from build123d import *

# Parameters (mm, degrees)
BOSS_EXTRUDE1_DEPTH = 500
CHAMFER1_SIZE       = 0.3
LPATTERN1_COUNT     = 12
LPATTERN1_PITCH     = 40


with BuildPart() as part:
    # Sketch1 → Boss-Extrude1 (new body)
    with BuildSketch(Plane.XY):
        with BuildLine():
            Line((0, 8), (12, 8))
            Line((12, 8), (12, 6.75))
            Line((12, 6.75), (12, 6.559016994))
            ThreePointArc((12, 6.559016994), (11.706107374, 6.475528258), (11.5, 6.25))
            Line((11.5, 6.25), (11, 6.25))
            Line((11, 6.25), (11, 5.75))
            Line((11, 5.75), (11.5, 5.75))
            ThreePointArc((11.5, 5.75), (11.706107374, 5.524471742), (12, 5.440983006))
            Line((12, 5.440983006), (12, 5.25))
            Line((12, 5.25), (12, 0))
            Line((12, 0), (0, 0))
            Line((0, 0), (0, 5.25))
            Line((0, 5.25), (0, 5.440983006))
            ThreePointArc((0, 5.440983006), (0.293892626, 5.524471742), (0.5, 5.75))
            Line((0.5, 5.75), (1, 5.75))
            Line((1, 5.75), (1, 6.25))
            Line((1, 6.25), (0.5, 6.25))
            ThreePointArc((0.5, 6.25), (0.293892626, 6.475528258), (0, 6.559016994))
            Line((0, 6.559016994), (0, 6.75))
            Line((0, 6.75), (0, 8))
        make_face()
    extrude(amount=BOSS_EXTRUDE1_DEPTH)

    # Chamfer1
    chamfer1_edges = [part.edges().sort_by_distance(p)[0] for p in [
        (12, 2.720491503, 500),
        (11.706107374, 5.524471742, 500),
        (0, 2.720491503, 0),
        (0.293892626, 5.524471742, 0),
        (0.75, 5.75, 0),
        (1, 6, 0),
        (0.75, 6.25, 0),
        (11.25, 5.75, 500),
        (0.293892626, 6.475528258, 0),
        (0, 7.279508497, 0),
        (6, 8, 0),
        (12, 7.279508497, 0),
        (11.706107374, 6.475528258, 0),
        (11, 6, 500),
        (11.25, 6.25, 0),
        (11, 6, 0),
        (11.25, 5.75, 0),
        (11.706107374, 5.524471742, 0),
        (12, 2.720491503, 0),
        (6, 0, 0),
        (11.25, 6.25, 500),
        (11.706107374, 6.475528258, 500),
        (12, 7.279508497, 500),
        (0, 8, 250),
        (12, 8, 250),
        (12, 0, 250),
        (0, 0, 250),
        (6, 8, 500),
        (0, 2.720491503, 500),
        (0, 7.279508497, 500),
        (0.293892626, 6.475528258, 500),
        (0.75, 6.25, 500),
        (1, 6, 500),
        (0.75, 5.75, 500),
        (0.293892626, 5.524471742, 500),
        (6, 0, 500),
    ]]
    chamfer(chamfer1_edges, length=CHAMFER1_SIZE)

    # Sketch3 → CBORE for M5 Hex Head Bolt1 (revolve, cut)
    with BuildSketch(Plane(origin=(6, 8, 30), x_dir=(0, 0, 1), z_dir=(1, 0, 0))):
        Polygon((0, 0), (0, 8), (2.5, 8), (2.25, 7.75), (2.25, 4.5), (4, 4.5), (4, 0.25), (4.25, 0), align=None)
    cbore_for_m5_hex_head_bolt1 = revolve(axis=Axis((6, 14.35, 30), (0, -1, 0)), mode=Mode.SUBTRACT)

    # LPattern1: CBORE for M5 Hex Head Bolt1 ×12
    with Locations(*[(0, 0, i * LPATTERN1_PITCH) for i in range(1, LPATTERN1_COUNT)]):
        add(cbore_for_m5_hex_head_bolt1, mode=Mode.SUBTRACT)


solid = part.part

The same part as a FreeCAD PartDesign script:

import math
import FreeCAD as App
import Part
import Sketcher
Q = App.Units.Quantity


def edges_at(feature, points):
    """Names of the edges that pass closest to the given points."""
    edges = feature.Shape.Edges
    near = lambda p: min(range(len(edges)), key=lambda i: edges[i].distToShape(Part.Vertex(*p))[0])
    return sorted({f"Edge{near(p) + 1}" for p in points})

doc = App.newDocument("Part")
body = doc.addObject("PartDesign::Body", "Body")

sketch1 = doc.addObject("Sketcher::SketchObject", "Sketch")
body.addObject(sketch1)
sketch1.AttachmentSupport = (doc.XY_Plane, [""])
sketch1.MapMode = "FlatFace"
sketch1.addGeometry(Part.LineSegment(App.Vector(12, 8, 0), App.Vector(0, 8, 0)), False)
sketch1.addGeometry(Part.LineSegment(App.Vector(0, 8, 0), App.Vector(0, 6.6, 0)), False)
sketch1.addGeometry(Part.ArcOfCircle(Part.Circle(App.Vector(0, 6, 0), App.Vector(0, 0, 1), 0.6), math.radians(27), math.radians(90)), False)
sketch1.addGeometry(Part.LineSegment(App.Vector(0.5, 6.2, 0), App.Vector(1, 6.2, 0)), False)
sketch1.addGeometry(Part.LineSegment(App.Vector(1, 6.2, 0), App.Vector(1, 5.8, 0)), False)
sketch1.addGeometry(Part.LineSegment(App.Vector(1, 5.8, 0), App.Vector(0.5, 5.8, 0)), False)
sketch1.addGeometry(Part.ArcOfCircle(Part.Circle(App.Vector(0, 6, 0), App.Vector(0, 0, 1), 0.6), math.radians(-90), math.radians(-27)), False)
sketch1.addGeometry(Part.LineSegment(App.Vector(0, 5.4, 0), App.Vector(0, 0, 0)), False)
sketch1.addGeometry(Part.LineSegment(App.Vector(0, 0, 0), App.Vector(12, 0, 0)), False)
sketch1.addGeometry(Part.LineSegment(App.Vector(12, 0, 0), App.Vector(12, 5.4, 0)), False)
sketch1.addGeometry(Part.ArcOfCircle(Part.Circle(App.Vector(12, 6, 0), App.Vector(0, 0, 1), 0.6), math.radians(-153), math.radians(-90)), False)
sketch1.addGeometry(Part.LineSegment(App.Vector(11.5, 5.8, 0), App.Vector(11, 5.8, 0)), False)
sketch1.addGeometry(Part.LineSegment(App.Vector(11, 5.8, 0), App.Vector(11, 6.2, 0)), False)
sketch1.addGeometry(Part.LineSegment(App.Vector(11, 6.2, 0), App.Vector(11.5, 6.2, 0)), False)
sketch1.addGeometry(Part.ArcOfCircle(Part.Circle(App.Vector(12, 6, 0), App.Vector(0, 0, 1), 0.6), math.radians(90), math.radians(153)), False)
sketch1.addGeometry(Part.LineSegment(App.Vector(12, 6.6, 0), App.Vector(12, 8, 0)), False)
sketch1.addConstraint(Sketcher.Constraint("Coincident", 0, 2, 1, 1))
sketch1.addConstraint(Sketcher.Constraint("Coincident", 1, 2, 2, 2))
sketch1.addConstraint(Sketcher.Constraint("Coincident", 2, 1, 3, 1))
sketch1.addConstraint(Sketcher.Constraint("Coincident", 3, 2, 4, 1))
sketch1.addConstraint(Sketcher.Constraint("Coincident", 4, 2, 5, 1))
sketch1.addConstraint(Sketcher.Constraint("Coincident", 5, 2, 6, 2))
sketch1.addConstraint(Sketcher.Constraint("Coincident", 6, 1, 7, 1))
sketch1.addConstraint(Sketcher.Constraint("Coincident", 7, 2, 8, 1))
sketch1.addConstraint(Sketcher.Constraint("Coincident", 8, 2, 9, 1))
sketch1.addConstraint(Sketcher.Constraint("Coincident", 9, 2, 10, 2))
sketch1.addConstraint(Sketcher.Constraint("Coincident", 10, 1, 11, 1))
sketch1.addConstraint(Sketcher.Constraint("Coincident", 11, 2, 12, 1))
sketch1.addConstraint(Sketcher.Constraint("Coincident", 12, 2, 13, 1))
sketch1.addConstraint(Sketcher.Constraint("Coincident", 13, 2, 14, 2))
sketch1.addConstraint(Sketcher.Constraint("Coincident", 14, 1, 15, 1))
sketch1.addConstraint(Sketcher.Constraint("Coincident", 15, 2, 0, 1))
sketch1.addConstraint(Sketcher.Constraint("Horizontal", 0))
sketch1.addConstraint(Sketcher.Constraint("Vertical", 1))
sketch1.addConstraint(Sketcher.Constraint("Horizontal", 3))
sketch1.addConstraint(Sketcher.Constraint("Vertical", 4))
sketch1.addConstraint(Sketcher.Constraint("Horizontal", 5))
sketch1.addConstraint(Sketcher.Constraint("Vertical", 7))
sketch1.addConstraint(Sketcher.Constraint("Horizontal", 8))
sketch1.addConstraint(Sketcher.Constraint("Vertical", 9))
sketch1.addConstraint(Sketcher.Constraint("Horizontal", 11))
sketch1.addConstraint(Sketcher.Constraint("Vertical", 12))
sketch1.addConstraint(Sketcher.Constraint("Horizontal", 13))
sketch1.addConstraint(Sketcher.Constraint("Vertical", 15))
sketch1.addConstraint(Sketcher.Constraint("Coincident", 7, 2, -1, 1))
sketch1.addConstraint(Sketcher.Constraint("Coincident", 6, 3, 2, 3))
sketch1.addConstraint(Sketcher.Constraint("Coincident", 14, 3, 10, 3))
sketch1.addConstraint(Sketcher.Constraint("Equal", 2, 6))
sketch1.addConstraint(Sketcher.Constraint("Equal", 6, 10))
sketch1.addConstraint(Sketcher.Constraint("Equal", 10, 14))
sketch1.addConstraint(Sketcher.Constraint("PointOnObject", 2, 3, -2))
sketch1.addConstraint(Sketcher.Constraint("PointOnObject", 0, 2, -2))
sketch1.addConstraint(Sketcher.Constraint("Horizontal", 6, 3, 10, 3))
sketch1.addConstraint(Sketcher.Constraint("Horizontal", 5, 2, 10, 1))
sketch1.addConstraint(Sketcher.Constraint("Horizontal", 3, 2, 12, 2))
sketch1.addConstraint(Sketcher.Constraint("Vertical", 2, 1, 5, 2))
sketch1.addConstraint(Sketcher.Constraint("Vertical", 14, 3, 8, 2))
sketch1.addConstraint(Sketcher.Constraint("Vertical", 9, 2, 14, 1))
sketch1.addConstraint(Sketcher.Constraint("Equal", 5, 11))
sketch1.addConstraint(Sketcher.Constraint("Equal", 13, 4))
sketch1.addConstraint(Sketcher.Constraint("DistanceX", 0, 2, 0, 1, Q("12 mm")))
sketch1.addConstraint(Sketcher.Constraint("DistanceX", 3, 1, 3, 2, Q("0.5 mm")))
sketch1.addConstraint(Sketcher.Constraint("DistanceY", -1, 1, 2, 3, Q("6 mm")))
sketch1.addConstraint(Sketcher.Constraint("DistanceY", -1, 1, 0, 2, Q("8 mm")))
sketch1.addConstraint(Sketcher.Constraint("DistanceX", -1, 1, 3, 2, Q("1 mm")))
pad1 = doc.addObject("PartDesign::Pad", "Pad")
body.addObject(pad1)
pad1.Profile = sketch1
pad1.Length = 500
doc.recompute()

chamfer = doc.addObject("PartDesign::Chamfer", "Chamfer")
body.addObject(chamfer)
chamfer.Base = (pad1, edges_at(pad1, [
    (12, 2.72, 500),
    (11.706, 5.524, 500),
    (0, 2.72, 0),
    (0.294, 5.524, 0),
    (0.75, 5.75, 0),
    (1, 6, 0),
    (0.75, 6.25, 0),
    (11.25, 5.75, 500),
    (0.294, 6.476, 0),
    (0, 7.28, 0),
    (6, 8, 0),
    (12, 7.28, 0),
    (11.706, 6.476, 0),
    (11, 6, 500),
    (11.25, 6.25, 0),
    (11, 6, 0),
    (11.25, 5.75, 0),
    (11.706, 5.524, 0),
    (12, 2.72, 0),
    (6, 0, 0),
    (11.25, 6.25, 500),
    (11.706, 6.476, 500),
    (12, 7.28, 500),
    (0, 8, 250),
    (12, 8, 250),
    (12, 0, 250),
    (0, 0, 250),
    (6, 8, 500),
    (0, 2.72, 500),
    (0, 7.28, 500),
    (0.294, 6.476, 500),
    (0.75, 6.25, 500),
    (1, 6, 500),
    (0.75, 5.75, 500),
    (0.294, 5.524, 500),
    (6, 0, 500),
]))
chamfer.Size = 0.3

sketch2 = doc.addObject("Sketcher::SketchObject", "Sketch001")
body.addObject(sketch2)
sketch2.AttachmentSupport = (doc.YZ_Plane, [""])
sketch2.MapMode = "FlatFace"
sketch2.AttachmentOffset = App.Placement(App.Vector(0, 0, 6), App.Rotation())
sketch2.addGeometry(Part.LineSegment(App.Vector(0, 30, 0), App.Vector(8, 30, 0)), False)
sketch2.addGeometry(Part.LineSegment(App.Vector(8, 30, 0), App.Vector(8, 34.25, 0)), False)
sketch2.addGeometry(Part.LineSegment(App.Vector(8, 34.25, 0), App.Vector(7.75, 34, 0)), False)
sketch2.addGeometry(Part.LineSegment(App.Vector(7.75, 34, 0), App.Vector(3.5, 34, 0)), False)
sketch2.addGeometry(Part.LineSegment(App.Vector(3.5, 34, 0), App.Vector(3.5, 32.25, 0)), False)
sketch2.addGeometry(Part.LineSegment(App.Vector(3.5, 32.25, 0), App.Vector(0.25, 32.25, 0)), False)
sketch2.addGeometry(Part.LineSegment(App.Vector(0.25, 32.25, 0), App.Vector(0, 32.5, 0)), False)
sketch2.addGeometry(Part.LineSegment(App.Vector(0, 32.5, 0), App.Vector(0, 30, 0)), False)
sketch2.addGeometry(Part.LineSegment(App.Vector(8, 30, 0), App.Vector(0, 30, 0)), True)
sketch2.addConstraint(Sketcher.Constraint("Coincident", 0, 2, 1, 1))
sketch2.addConstraint(Sketcher.Constraint("Coincident", 1, 2, 2, 1))
sketch2.addConstraint(Sketcher.Constraint("Coincident", 2, 2, 3, 1))
sketch2.addConstraint(Sketcher.Constraint("Coincident", 3, 2, 4, 1))
sketch2.addConstraint(Sketcher.Constraint("Coincident", 4, 2, 5, 1))
sketch2.addConstraint(Sketcher.Constraint("Coincident", 5, 2, 6, 1))
sketch2.addConstraint(Sketcher.Constraint("Coincident", 6, 2, 7, 1))
sketch2.addConstraint(Sketcher.Constraint("Coincident", 7, 2, 0, 1))
sketch2.addConstraint(Sketcher.Constraint("Horizontal", 0))
sketch2.addConstraint(Sketcher.Constraint("Vertical", 1))
sketch2.addConstraint(Sketcher.Constraint("Horizontal", 3))
sketch2.addConstraint(Sketcher.Constraint("Vertical", 4))
sketch2.addConstraint(Sketcher.Constraint("Horizontal", 5))
sketch2.addConstraint(Sketcher.Constraint("Vertical", 7))
sketch2.addConstraint(Sketcher.Constraint("Horizontal", 8))
sketch2.addConstraint(Sketcher.Constraint("Coincident", 8, 1, 0, 2))
sketch2.addConstraint(Sketcher.Constraint("PointOnObject", 6, 2, -2))
sketch2.addConstraint(Sketcher.Constraint("PointOnObject", 8, 2, -2))
sketch2.addConstraint(Sketcher.Constraint("Perpendicular", 2, 6))
sketch2.addConstraint(Sketcher.Constraint("Equal", 3, 1))
sketch2.addConstraint(Sketcher.Constraint("Equal", 2, 6))
sketch2.addConstraint(Sketcher.Constraint("DistanceX", 0, 1, 0, 2, Q("8 mm")))
sketch2.addConstraint(Sketcher.Constraint("Angle", 2, Q("-135 deg")))
sketch2.addConstraint(Sketcher.Constraint("DistanceY", 7, 2, 7, 1, Q("2.5 mm")))
sketch2.addConstraint(Sketcher.Constraint("DistanceY", -1, 1, 0, 2, Q("30 mm")))
sketch2.addConstraint(Sketcher.Constraint("DistanceY", -1, 1, 2, 2, Q("34 mm")))
sketch2.addConstraint(Sketcher.Constraint("DistanceY", 4, 2, 1, 2, Q("2 mm")))
groove = doc.addObject("PartDesign::Groove", "Groove")
body.addObject(groove)
groove.Profile = sketch2
groove.ReferenceAxis = (sketch2, ["Axis0"])
groove.Angle = 360
doc.recompute()

linearpattern = doc.addObject("PartDesign::LinearPattern", "LinearPattern")
body.addObject(linearpattern)
linearpattern.Originals = [groove]
linearpattern.Direction = (doc.Z_Axis, [""])
linearpattern.Mode = "offset"
linearpattern.Offset = 40
linearpattern.Occurrences = 12
body.Tip = linearpattern

doc.recompute()
